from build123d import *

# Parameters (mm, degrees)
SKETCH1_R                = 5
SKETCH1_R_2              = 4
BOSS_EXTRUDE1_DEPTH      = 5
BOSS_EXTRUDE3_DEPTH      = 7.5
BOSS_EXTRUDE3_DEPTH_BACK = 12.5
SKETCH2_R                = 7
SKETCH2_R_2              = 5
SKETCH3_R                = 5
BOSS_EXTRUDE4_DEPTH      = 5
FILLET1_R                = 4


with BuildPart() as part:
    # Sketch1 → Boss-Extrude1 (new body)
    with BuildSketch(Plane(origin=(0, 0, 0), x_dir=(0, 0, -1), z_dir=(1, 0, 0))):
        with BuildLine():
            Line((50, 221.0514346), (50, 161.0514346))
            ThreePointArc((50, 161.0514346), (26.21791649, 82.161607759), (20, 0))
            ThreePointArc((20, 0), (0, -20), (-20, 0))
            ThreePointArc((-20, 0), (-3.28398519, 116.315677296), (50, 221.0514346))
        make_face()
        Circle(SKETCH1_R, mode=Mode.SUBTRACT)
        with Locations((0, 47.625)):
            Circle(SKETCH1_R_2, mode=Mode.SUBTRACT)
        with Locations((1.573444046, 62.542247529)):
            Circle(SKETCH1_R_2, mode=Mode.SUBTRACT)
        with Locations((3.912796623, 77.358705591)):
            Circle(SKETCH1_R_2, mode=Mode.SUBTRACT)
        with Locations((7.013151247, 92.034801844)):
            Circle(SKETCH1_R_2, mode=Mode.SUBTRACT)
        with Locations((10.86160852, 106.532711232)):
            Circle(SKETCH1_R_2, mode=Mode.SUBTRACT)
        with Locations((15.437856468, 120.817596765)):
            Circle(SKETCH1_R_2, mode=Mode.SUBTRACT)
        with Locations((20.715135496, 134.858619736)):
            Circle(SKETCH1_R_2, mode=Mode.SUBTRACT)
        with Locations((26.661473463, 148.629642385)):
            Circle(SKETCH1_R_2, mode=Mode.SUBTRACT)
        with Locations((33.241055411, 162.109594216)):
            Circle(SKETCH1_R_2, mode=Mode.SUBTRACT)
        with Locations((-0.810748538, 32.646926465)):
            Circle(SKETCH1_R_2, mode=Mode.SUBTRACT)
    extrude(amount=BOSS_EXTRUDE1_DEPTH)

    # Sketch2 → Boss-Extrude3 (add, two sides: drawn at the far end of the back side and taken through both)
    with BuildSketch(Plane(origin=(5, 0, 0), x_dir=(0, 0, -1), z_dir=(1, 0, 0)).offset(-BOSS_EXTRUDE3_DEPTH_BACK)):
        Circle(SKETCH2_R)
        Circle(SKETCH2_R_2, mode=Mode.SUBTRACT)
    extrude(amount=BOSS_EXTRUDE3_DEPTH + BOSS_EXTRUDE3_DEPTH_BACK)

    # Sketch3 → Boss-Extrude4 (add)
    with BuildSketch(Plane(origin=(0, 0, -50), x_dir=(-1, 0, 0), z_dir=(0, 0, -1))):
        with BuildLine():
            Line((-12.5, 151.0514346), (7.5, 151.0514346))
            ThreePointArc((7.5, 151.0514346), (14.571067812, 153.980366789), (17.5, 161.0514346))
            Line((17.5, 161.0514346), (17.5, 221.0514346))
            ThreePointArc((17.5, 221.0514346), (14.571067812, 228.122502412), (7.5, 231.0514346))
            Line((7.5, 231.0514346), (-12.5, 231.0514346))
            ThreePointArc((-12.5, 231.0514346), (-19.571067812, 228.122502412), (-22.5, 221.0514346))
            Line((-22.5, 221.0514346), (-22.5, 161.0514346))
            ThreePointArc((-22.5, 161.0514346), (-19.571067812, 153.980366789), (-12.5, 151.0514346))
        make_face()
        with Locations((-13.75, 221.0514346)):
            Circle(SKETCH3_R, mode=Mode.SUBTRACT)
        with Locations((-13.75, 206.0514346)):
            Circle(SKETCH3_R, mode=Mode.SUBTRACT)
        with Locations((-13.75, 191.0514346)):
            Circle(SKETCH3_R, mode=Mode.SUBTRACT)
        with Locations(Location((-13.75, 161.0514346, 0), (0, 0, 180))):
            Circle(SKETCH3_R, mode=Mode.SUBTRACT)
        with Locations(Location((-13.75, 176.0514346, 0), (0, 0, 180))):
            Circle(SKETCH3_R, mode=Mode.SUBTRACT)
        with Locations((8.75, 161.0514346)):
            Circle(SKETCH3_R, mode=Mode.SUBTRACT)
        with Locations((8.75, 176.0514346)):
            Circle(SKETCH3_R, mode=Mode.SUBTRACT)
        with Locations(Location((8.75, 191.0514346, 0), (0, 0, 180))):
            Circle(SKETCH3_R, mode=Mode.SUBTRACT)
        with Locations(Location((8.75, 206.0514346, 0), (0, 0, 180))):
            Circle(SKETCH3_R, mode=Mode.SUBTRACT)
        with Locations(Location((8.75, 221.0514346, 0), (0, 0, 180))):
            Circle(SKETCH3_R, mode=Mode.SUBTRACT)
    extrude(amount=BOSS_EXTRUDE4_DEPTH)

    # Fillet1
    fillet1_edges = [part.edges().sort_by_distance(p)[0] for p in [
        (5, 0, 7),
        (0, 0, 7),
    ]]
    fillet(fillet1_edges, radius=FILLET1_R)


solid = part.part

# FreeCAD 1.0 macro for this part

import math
import FreeCAD as App
import Part
import Sketcher


def edges_at(feature, points):
    """Names of the edges that pass closest to the given points."""
    edges = feature.Shape.Edges
    near = lambda p: min(range(len(edges)), key=lambda i: edges[i].distToShape(Part.Vertex(*p))[0])
    return sorted({f"Edge{near(p) + 1}" for p in points})

doc = App.newDocument("Part")
params = doc.addObject("Spreadsheet::Sheet", "Params")
for row, (alias, value) in enumerate([
    ("sketch1_diameter", "10 mm"),
    ("sketch1_diameter2", "8 mm"),
    ("sketch1_radius", "360 mm"),
    ("sketch1_radius2", "20 mm"),
    ("sketch1_radius3", "380 mm"),
    ("pad1_length", "5 mm"),
    ("sketch2_diameter", "14 mm"),
    ("sketch2_diameter2", "10 mm"),
    ("pad2_length", "7.5 mm"),
    ("pad2_length2", "12.5 mm"),
    ("sketch3_diameter", "10 mm"),
    ("sketch3_radius", "10 mm"),
    ("sketch3_width", "20 mm"),
    ("sketch3_height", "60 mm"),
    ("pad3_length", "5 mm"),
    ("fillet_radius", "4 mm"),
], start=1):
    params.set(f"A{row}", alias)
    params.set(f"B{row}", "=" + value)
    params.setAlias(f"B{row}", alias)

body = doc.addObject("PartDesign::Body", "Body")

sketch1 = body.newObject("Sketcher::SketchObject", "Sketch")
sketch1.AttachmentSupport = (doc.getObject("YZ_Plane"), [""])
sketch1.MapMode = "FlatFace"
sketch1.addGeometry(Part.LineSegment(App.Vector(161.1, -50, 0), App.Vector(221.1, -50, 0)), False)
sketch1.addGeometry(Part.ArcOfCircle(Part.Circle(App.Vector(7.6, -339.9, 0), App.Vector(0, 0, 1), 360), math.radians(54), math.radians(91)), False)
sketch1.addGeometry(Part.ArcOfCircle(Part.Circle(App.Vector(0, 0, 0), App.Vector(0, 0, 1), 20), math.radians(90), math.radians(270)), False)
sketch1.addGeometry(Part.ArcOfCircle(Part.Circle(App.Vector(12.6, -399.8, 0), App.Vector(0, 0, 1), 380), math.radians(67), math.radians(92)), False)
sketch1.addGeometry(Part.Circle(App.Vector(0, 0, 0), App.Vector(0, 0, 1), 5), False)
sketch1.addGeometry(Part.Circle(App.Vector(32.6, 0.8, 0), App.Vector(0, 0, 1), 4), False)
sketch1.addGeometry(Part.Circle(App.Vector(47.6, 0, 0), App.Vector(0, 0, 1), 4), False)
sketch1.addGeometry(Part.Circle(App.Vector(62.5, -1.6, 0), App.Vector(0, 0, 1), 4), False)
sketch1.addGeometry(Part.Circle(App.Vector(77.4, -3.9, 0), App.Vector(0, 0, 1), 4), False)
sketch1.addGeometry(Part.Circle(App.Vector(162.1, -33.2, 0), App.Vector(0, 0, 1), 4), False)
sketch1.addGeometry(Part.Circle(App.Vector(134.9, -20.7, 0), App.Vector(0, 0, 1), 4), False)
sketch1.addGeometry(Part.Circle(App.Vector(148.6, -26.7, 0), App.Vector(0, 0, 1), 4), False)
sketch1.addGeometry(Part.Circle(App.Vector(92, -7, 0), App.Vector(0, 0, 1), 4), False)
sketch1.addGeometry(Part.Circle(App.Vector(106.5, -10.9, 0), App.Vector(0, 0, 1), 4), False)
sketch1.addGeometry(Part.Circle(App.Vector(120.8, -15.4, 0), App.Vector(0, 0, 1), 4), False)
sketch1.addConstraint(Sketcher.Constraint("Coincident", 0, 2, 1, 1))
sketch1.addConstraint(Sketcher.Constraint("Coincident", 1, 2, 2, 1))
sketch1.addConstraint(Sketcher.Constraint("Coincident", 2, 2, 3, 2))
sketch1.addConstraint(Sketcher.Constraint("Coincident", 3, 1, 0, 1))
sketch1.addConstraint(Sketcher.Constraint("Horizontal", 0))
sketch1.addConstraint(Sketcher.Constraint("Coincident", 2, 3, -1, 1))
sketch1.addConstraint(Sketcher.Constraint("Coincident", 4, 3, -1, 1))
sketch1.addConstraint(Sketcher.Constraint("Equal", 5, 6))
sketch1.addConstraint(Sketcher.Constraint("Equal", 6, 7))
sketch1.addConstraint(Sketcher.Constraint("Equal", 7, 8))
sketch1.addConstraint(Sketcher.Constraint("Equal", 8, 9))
sketch1.addConstraint(Sketcher.Constraint("Equal", 9, 10))
sketch1.addConstraint(Sketcher.Constraint("Equal", 10, 11))
sketch1.addConstraint(Sketcher.Constraint("Equal", 11, 12))
sketch1.addConstraint(Sketcher.Constraint("Equal", 12, 13))
sketch1.addConstraint(Sketcher.Constraint("Equal", 13, 14))
sketch1.addConstraint(Sketcher.Constraint("PointOnObject", 6, 3, -1))
sketch1.addConstraint(Sketcher.Constraint("PointOnObject", 1, 2, -2))
sketch1.addConstraint(Sketcher.Constraint("PointOnObject", 2, 2, -2))
sketch1.addConstraint(Sketcher.Constraint("Diameter", 4, 10.0))
sketch1.addConstraint(Sketcher.Constraint("Diameter", 5, 8.0))
sketch1.addConstraint(Sketcher.Constraint("Radius", 1, 360.0))
sketch1.addConstraint(Sketcher.Constraint("Radius", 2, 20.0))
sketch1.addConstraint(Sketcher.Constraint("Radius", 3, 380.0))
sketch1.addConstraint(Sketcher.Constraint("DistanceX", 0, 1, 0, 2, 60.0))
sketch1.addConstraint(Sketcher.Constraint("DistanceY", 0, 2, -1, 1, 50.0))
sketch1.addConstraint(Sketcher.Constraint("DistanceX", -1, 1, 6, 3, 47.625))
sketch1.addConstraint(Sketcher.Constraint("DistanceX", -1, 1, 12, 3, 92.034802))
sketch1.addConstraint(Sketcher.Constraint("DistanceY", 12, 3, 5, 3, 7.8239))
sketch1.addConstraint(Sketcher.Constraint("DistanceX", -1, 1, 1, 3, 7.634129))
sketch1.addConstraint(Sketcher.Constraint("DistanceY", -1, 1, 5, 3, 0.810749))
sketch1.addConstraint(Sketcher.Constraint("DistanceX", -1, 1, 10, 3, 134.85862))
sketch1.addConstraint(Sketcher.Constraint("DistanceX", -1, 1, 13, 3, 106.532711))
sketch1.addConstraint(Sketcher.Constraint("DistanceY", 13, 3, -1, 1, 10.861609))
sketch1.addConstraint(Sketcher.Constraint("DistanceX", 3, 3, 5, 3, 20.07315))
sketch1.addConstraint(Sketcher.Constraint("DistanceX", 5, 3, 7, 3, 29.895321))
sketch1.addConstraint(Sketcher.Constraint("DistanceX", 7, 3, 8, 3, 14.816458))
sketch1.addConstraint(Sketcher.Constraint("DistanceX", 8, 3, 9, 3, 84.750889))
sketch1.addConstraint(Sketcher.Constraint("DistanceY", 9, 3, 8, 3, 29.328259))
sketch1.addConstraint(Sketcher.Constraint("DistanceY", 9, 3, 7, 3, 31.667611))
sketch1.addConstraint(Sketcher.Constraint("DistanceY", 9, 3, 10, 3, 12.52592))
sketch1.addConstraint(Sketcher.Constraint("DistanceX", 11, 3, 9, 3, 13.479952))
sketch1.addConstraint(Sketcher.Constraint("DistanceY", 9, 3, 11, 3, 6.579582))
sketch1.addConstraint(Sketcher.Constraint("DistanceY", 13, 3, 8, 3, 6.948812))
sketch1.addConstraint(Sketcher.Constraint("DistanceY", 10, 3, 14, 3, 5.277279))
sketch1.addConstraint(Sketcher.Constraint("DistanceX", 8, 3, 14, 3, 43.458891))
sketch1.setExpression("Constraints[19]", "Params.sketch1_diameter")
sketch1.setExpression("Constraints[20]", "Params.sketch1_diameter2")
sketch1.setExpression("Constraints[21]", "Params.sketch1_radius")
sketch1.setExpression("Constraints[22]", "Params.sketch1_radius2")
sketch1.setExpression("Constraints[23]", "Params.sketch1_radius3")
pad1 = body.newObject("PartDesign::Pad", "Pad")
pad1.Profile = sketch1
pad1.setExpression("Length", "Params.pad1_length")

sketch2 = body.newObject("Sketcher::SketchObject", "Sketch001")
sketch2.AttachmentSupport = (doc.getObject("YZ_Plane"), [""])
sketch2.MapMode = "FlatFace"
sketch2.AttachmentOffset = App.Placement(App.Vector(0, 0, 5), App.Rotation())
sketch2.addGeometry(Part.Circle(App.Vector(0, 0, 0), App.Vector(0, 0, 1), 7), False)
sketch2.addGeometry(Part.Circle(App.Vector(0, 0, 0), App.Vector(0, 0, 1), 5), False)
sketch2.addConstraint(Sketcher.Constraint("Coincident", 0, 3, -1, 1))
sketch2.addConstraint(Sketcher.Constraint("Coincident", 1, 3, -1, 1))
sketch2.addConstraint(Sketcher.Constraint("Diameter", 0, 14.0))
sketch2.addConstraint(Sketcher.Constraint("Diameter", 1, 10.0))
sketch2.setExpression("Constraints[2]", "Params.sketch2_diameter")
sketch2.setExpression("Constraints[3]", "Params.sketch2_diameter2")
pad2 = body.newObject("PartDesign::Pad", "Pad001")
pad2.Profile = sketch2
pad2.Type = "TwoLengths"
pad2.setExpression("Length", "Params.pad2_length")
pad2.setExpression("Length2", "Params.pad2_length2")

sketch3 = body.newObject("Sketcher::SketchObject", "Sketch002")
sketch3.AttachmentSupport = (doc.getObject("XY_Plane"), [""])
sketch3.MapMode = "FlatFace"
sketch3.AttachmentOffset = App.Placement(App.Vector(0, 0, -50), App.Rotation())
sketch3.addGeometry(Part.LineSegment(App.Vector(12, 151, 0), App.Vector(-8, 151, 0)), False)
sketch3.addGeometry(Part.ArcOfCircle(Part.Circle(App.Vector(-7, 161, 0), App.Vector(0, 0, 1), 10), math.radians(-180), math.radians(-90)), False)
sketch3.addGeometry(Part.LineSegment(App.Vector(-18, 161, 0), App.Vector(-18, 221, 0)), False)
sketch3.addGeometry(Part.ArcOfCircle(Part.Circle(App.Vector(-8, 221, 0), App.Vector(0, 0, 1), 10), math.radians(90), math.radians(180)), False)
sketch3.addGeometry(Part.LineSegment(App.Vector(-8, 231, 0), App.Vector(12, 231, 0)), False)
sketch3.addGeometry(Part.ArcOfCircle(Part.Circle(App.Vector(12, 221, 0), App.Vector(0, 0, 1), 10), math.radians(0), math.radians(90)), False)
sketch3.addGeometry(Part.LineSegment(App.Vector(22, 221, 0), App.Vector(22, 161, 0)), False)
sketch3.addGeometry(Part.ArcOfCircle(Part.Circle(App.Vector(12, 161, 0), App.Vector(0, 0, 1), 10), math.radians(-90), math.radians(0)), False)
sketch3.addGeometry(Part.Circle(App.Vector(14, 161, 0), App.Vector(0, 0, 1), 5), False)
sketch3.addGeometry(Part.Circle(App.Vector(14, 176, 0), App.Vector(0, 0, 1), 5), False)
sketch3.addGeometry(Part.Circle(App.Vector(-9, 161, 0), App.Vector(0, 0, 1), 5), False)
sketch3.addGeometry(Part.Circle(App.Vector(-9, 176, 0), App.Vector(0, 0, 1), 5), False)
sketch3.addGeometry(Part.Circle(App.Vector(14, 191, 0), App.Vector(0, 0, 1), 5), False)
sketch3.addGeometry(Part.Circle(App.Vector(14, 206, 0), App.Vector(0, 0, 1), 5), False)
sketch3.addGeometry(Part.Circle(App.Vector(14, 221, 0), App.Vector(0, 0, 1), 5), False)
sketch3.addGeometry(Part.Circle(App.Vector(-9, 191, 0), App.Vector(0, 0, 1), 5), False)
sketch3.addGeometry(Part.Circle(App.Vector(-9, 206, 0), App.Vector(0, 0, 1), 5), False)
sketch3.addGeometry(Part.Circle(App.Vector(-9, 221, 0), App.Vector(0, 0, 1), 5), False)
sketch3.addConstraint(Sketcher.Constraint("Tangent", 0, 2, 1, 2))
sketch3.addConstraint(Sketcher.Constraint("Tangent", 1, 1, 2, 1))
sketch3.addConstraint(Sketcher.Constraint("Tangent", 2, 2, 3, 2))
sketch3.addConstraint(Sketcher.Constraint("Tangent", 3, 1, 4, 1))
sketch3.addConstraint(Sketcher.Constraint("Tangent", 4, 2, 5, 2))
sketch3.addConstraint(Sketcher.Constraint("Tangent", 5, 1, 6, 1))
sketch3.addConstraint(Sketcher.Constraint("Tangent", 6, 2, 7, 2))
sketch3.addConstraint(Sketcher.Constraint("Tangent", 7, 1, 0, 1))
sketch3.addConstraint(Sketcher.Constraint("Horizontal", 0))
sketch3.addConstraint(Sketcher.Constraint("Vertical", 2))
sketch3.addConstraint(Sketcher.Constraint("Horizontal", 4))
sketch3.addConstraint(Sketcher.Constraint("Vertical", 6))
sketch3.addConstraint(Sketcher.Constraint("Equal", 1, 3))
sketch3.addConstraint(Sketcher.Constraint("Equal", 3, 5))
sketch3.addConstraint(Sketcher.Constraint("Equal", 5, 7))
sketch3.addConstraint(Sketcher.Constraint("Equal", 8, 9))
sketch3.addConstraint(Sketcher.Constraint("Equal", 9, 10))
sketch3.addConstraint(Sketcher.Constraint("Equal", 10, 11))
sketch3.addConstraint(Sketcher.Constraint("Equal", 11, 12))
sketch3.addConstraint(Sketcher.Constraint("Equal", 12, 13))
sketch3.addConstraint(Sketcher.Constraint("Equal", 13, 14))
sketch3.addConstraint(Sketcher.Constraint("Equal", 14, 15))
sketch3.addConstraint(Sketcher.Constraint("Equal", 15, 16))
sketch3.addConstraint(Sketcher.Constraint("Equal", 16, 17))
sketch3.addConstraint(Sketcher.Constraint("Horizontal", 7, 3, 8, 3))
sketch3.addConstraint(Sketcher.Constraint("Horizontal", 8, 3, 10, 3))
sketch3.addConstraint(Sketcher.Constraint("Horizontal", 9, 3, 11, 3))
sketch3.addConstraint(Sketcher.Constraint("Horizontal", 5, 3, 14, 3))
sketch3.addConstraint(Sketcher.Constraint("Horizontal", 12, 3, 15, 3))
sketch3.addConstraint(Sketcher.Constraint("Horizontal", 13, 3, 16, 3))
sketch3.addConstraint(Sketcher.Constraint("Horizontal", 14, 3, 17, 3))
sketch3.addConstraint(Sketcher.Constraint("Vertical", 8, 3, 9, 3))
sketch3.addConstraint(Sketcher.Constraint("Vertical", 10, 3, 11, 3))
sketch3.addConstraint(Sketcher.Constraint("Vertical", 9, 3, 12, 3))
sketch3.addConstraint(Sketcher.Constraint("Vertical", 12, 3, 13, 3))
sketch3.addConstraint(Sketcher.Constraint("Vertical", 13, 3, 14, 3))
sketch3.addConstraint(Sketcher.Constraint("Vertical", 11, 3, 15, 3))
sketch3.addConstraint(Sketcher.Constraint("Vertical", 15, 3, 16, 3))
sketch3.addConstraint(Sketcher.Constraint("Vertical", 16, 3, 17, 3))
sketch3.addConstraint(Sketcher.Constraint("Diameter", 8, 10.0))
sketch3.addConstraint(Sketcher.Constraint("Radius", 1, 10.0))
sketch3.addConstraint(Sketcher.Constraint("DistanceX", 0, 2, 0, 1, 20.0))
sketch3.addConstraint(Sketcher.Constraint("DistanceY", 2, 1, 2, 2, 60.0))
sketch3.addConstraint(Sketcher.Constraint("DistanceY", 8, 3, 9, 3, 15.0))
sketch3.addConstraint(Sketcher.Constraint("DistanceY", 9, 3, 12, 3, 15.0))
sketch3.addConstraint(Sketcher.Constraint("DistanceY", 12, 3, 13, 3, 15.0))
sketch3.addConstraint(Sketcher.Constraint("DistanceX", 1, 3, -1, 1, 7.5))
sketch3.addConstraint(Sketcher.Constraint("DistanceX", 10, 3, 8, 3, 22.5))
sketch3.addConstraint(Sketcher.Constraint("DistanceX", -1, 1, 8, 3, 13.75))
sketch3.addConstraint(Sketcher.Constraint("DistanceY", -1, 1, 1, 3, 161.051435))
sketch3.setExpression("Constraints[39]", "Params.sketch3_diameter")
sketch3.setExpression("Constraints[40]", "Params.sketch3_radius")
sketch3.setExpression("Constraints[41]", "Params.sketch3_width")
sketch3.setExpression("Constraints[42]", "Params.sketch3_height")
pad3 = body.newObject("PartDesign::Pad", "Pad002")
pad3.Profile = sketch3
pad3.setExpression("Length", "Params.pad3_length")
pad3.Reversed = True
doc.recompute()

fillet = body.newObject("PartDesign::Fillet", "Fillet")
fillet.Base = (pad3, edges_at(pad3, [(5, 0, 7), (0, 0, 7)]))
fillet.setExpression("Radius", "Params.fillet_radius")

doc.recompute()
